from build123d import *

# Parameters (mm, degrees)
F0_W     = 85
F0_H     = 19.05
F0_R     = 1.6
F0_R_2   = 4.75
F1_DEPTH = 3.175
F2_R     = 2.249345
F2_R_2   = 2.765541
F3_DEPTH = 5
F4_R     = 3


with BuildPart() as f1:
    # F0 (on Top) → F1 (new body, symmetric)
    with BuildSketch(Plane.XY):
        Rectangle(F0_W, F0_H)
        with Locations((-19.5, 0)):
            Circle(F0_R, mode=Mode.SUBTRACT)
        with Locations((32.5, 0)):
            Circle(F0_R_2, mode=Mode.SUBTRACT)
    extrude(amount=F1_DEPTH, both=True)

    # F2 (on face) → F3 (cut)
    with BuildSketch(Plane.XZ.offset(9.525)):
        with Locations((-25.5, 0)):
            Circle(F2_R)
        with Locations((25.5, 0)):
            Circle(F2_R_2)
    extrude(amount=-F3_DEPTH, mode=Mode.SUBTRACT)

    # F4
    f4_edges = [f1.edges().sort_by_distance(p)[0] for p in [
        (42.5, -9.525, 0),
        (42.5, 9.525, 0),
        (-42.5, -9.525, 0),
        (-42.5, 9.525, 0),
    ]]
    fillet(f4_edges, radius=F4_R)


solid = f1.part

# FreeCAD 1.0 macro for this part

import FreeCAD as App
import Part
import Sketcher
Q = App.Units.Quantity


def edges_at(feature, points):
    """Names of the edges that pass closest to the given points."""
    edges = feature.Shape.Edges
    near = lambda p: min(range(len(edges)), key=lambda i: edges[i].distToShape(Part.Vertex(*p))[0])
    return sorted({f"Edge{near(p) + 1}" for p in points})

doc = App.newDocument("Part")
body = doc.addObject("PartDesign::Body", "Body")

# Sketch on XY plane
sketch1 = doc.addObject("Sketcher::SketchObject", "Sketch")
body.addObject(sketch1)
sketch1.AttachmentSupport = (doc.XY_Plane, [""])
sketch1.MapMode = "FlatFace"
sketch1.addGeometry(Part.LineSegment(App.Vector(-42.5, 9.5, 0), App.Vector(-42.5, -9.5, 0)), False)
sketch1.addGeometry(Part.LineSegment(App.Vector(-42.5, -9.5, 0), App.Vector(42.5, -9.5, 0)), False)
sketch1.addGeometry(Part.LineSegment(App.Vector(42.5, -9.5, 0), App.Vector(42.5, 9.5, 0)), False)
sketch1.addGeometry(Part.LineSegment(App.Vector(42.5, 9.5, 0), App.Vector(-42.5, 9.5, 0)), False)
sketch1.addGeometry(Part.Circle(App.Vector(-19.5, 0, 0), App.Vector(0, 0, 1), 1.6), False)
sketch1.addGeometry(Part.Circle(App.Vector(32.5, 0, 0), App.Vector(0, 0, 1), 4.8), False)
sketch1.addConstraint(Sketcher.Constraint("Coincident", 0, 2, 1, 1))
sketch1.addConstraint(Sketcher.Constraint("Coincident", 1, 2, 2, 1))
sketch1.addConstraint(Sketcher.Constraint("Coincident", 2, 2, 3, 1))
sketch1.addConstraint(Sketcher.Constraint("Coincident", 3, 2, 0, 1))
sketch1.addConstraint(Sketcher.Constraint("Vertical", 0))
sketch1.addConstraint(Sketcher.Constraint("Horizontal", 1))
sketch1.addConstraint(Sketcher.Constraint("Vertical", 2))
sketch1.addConstraint(Sketcher.Constraint("Horizontal", 3))
sketch1.addConstraint(Sketcher.Constraint("Symmetric", 0, 2, 2, 2, -1, 1))
sketch1.addConstraint(Sketcher.Constraint("PointOnObject", 4, 3, -1))
sketch1.addConstraint(Sketcher.Constraint("PointOnObject", 5, 3, -1))
sketch1.addConstraint(Sketcher.Constraint("Diameter", 4, Q("3.2 mm")))
sketch1.addConstraint(Sketcher.Constraint("Diameter", 5, Q("9.5 mm")))
sketch1.addConstraint(Sketcher.Constraint("DistanceX", 1, 1, 1, 2, Q("85 mm")))
sketch1.addConstraint(Sketcher.Constraint("DistanceX", 4, 3, 5, 3, Q("52 mm")))
sketch1.addConstraint(Sketcher.Constraint("DistanceX", 0, 2, 4, 3, Q("23 mm")))
sketch1.addConstraint(Sketcher.Constraint("DistanceY", 0, 2, 0, 1, Q("19.05 mm")))
pad1 = doc.addObject("PartDesign::Pad", "Pad")
body.addObject(pad1)
pad1.Profile = sketch1
pad1.Length = 6.35
pad1.Midplane = True

# Sketch on XZ plane
sketch2 = doc.addObject("Sketcher::SketchObject", "Sketch001")
body.addObject(sketch2)
sketch2.AttachmentSupport = (doc.XZ_Plane, [""])
sketch2.MapMode = "FlatFace"
sketch2.AttachmentOffset = App.Placement(App.Vector(0, 0, 9.525), App.Rotation())
sketch2.addGeometry(Part.Circle(App.Vector(-25.5, 0, 0), App.Vector(0, 0, 1), 2.2), False)
sketch2.addGeometry(Part.Circle(App.Vector(25.5, 0, 0), App.Vector(0, 0, 1), 2.8), False)
sketch2.addConstraint(Sketcher.Constraint("Symmetric", 0, 3, 1, 3, -1, 1))
sketch2.addConstraint(Sketcher.Constraint("PointOnObject", 0, 3, -1))
sketch2.addConstraint(Sketcher.Constraint("DistanceX", 0, 3, 1, 3, Q("51 mm")))
sketch2.addConstraint(Sketcher.Constraint("Diameter", 0, Q("4.49869 mm")))
sketch2.addConstraint(Sketcher.Constraint("Diameter", 1, Q("5.531082 mm")))
pocket1 = doc.addObject("PartDesign::Pocket", "Pocket")
body.addObject(pocket1)
pocket1.Profile = sketch2
pocket1.Length = 5
doc.recompute()

fillet = doc.addObject("PartDesign::Fillet", "Fillet")
body.addObject(fillet)
fillet.Base = (pocket1, edges_at(pocket1, [
    (42.5, -9.525, 0),
    (42.5, 9.525, 0),
    (-42.5, -9.525, 0),
    (-42.5, 9.525, 0),
]))
fillet.Radius = 3

doc.recompute()
